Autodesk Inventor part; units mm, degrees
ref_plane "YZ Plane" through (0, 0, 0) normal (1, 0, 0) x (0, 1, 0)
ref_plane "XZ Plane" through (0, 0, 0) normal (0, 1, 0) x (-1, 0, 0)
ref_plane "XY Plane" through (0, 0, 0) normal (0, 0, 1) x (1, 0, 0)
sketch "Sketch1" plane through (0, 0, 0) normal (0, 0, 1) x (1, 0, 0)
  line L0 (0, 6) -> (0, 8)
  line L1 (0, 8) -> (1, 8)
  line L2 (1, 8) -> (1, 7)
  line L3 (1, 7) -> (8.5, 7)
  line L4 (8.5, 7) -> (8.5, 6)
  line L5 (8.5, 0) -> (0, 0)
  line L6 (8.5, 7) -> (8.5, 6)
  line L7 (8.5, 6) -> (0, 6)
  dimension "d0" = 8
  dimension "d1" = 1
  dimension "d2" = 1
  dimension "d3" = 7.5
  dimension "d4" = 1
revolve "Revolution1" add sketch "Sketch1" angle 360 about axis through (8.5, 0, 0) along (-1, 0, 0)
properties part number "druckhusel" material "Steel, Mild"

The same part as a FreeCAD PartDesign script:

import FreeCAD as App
import Part
import Sketcher

V = App.Vector


def add_polygon(sketch, points):
    """Adds a closed chain of lines whose ends are joined by coincident constraints."""
    first, n = sketch.GeometryCount, len(points)
    for a, b in zip(points, points[1:] + points[:1]):
        sketch.addGeometry(Part.LineSegment(App.Vector(*a, 0), App.Vector(*b, 0)), False)
    for i in range(n):
        sketch.addConstraint(Sketcher.Constraint("Coincident", first + i, 2, first + (i + 1) % n, 1))

doc = App.newDocument("Part")
body = doc.addObject("PartDesign::Body", "Body")

sketch1 = body.newObject("Sketcher::SketchObject", "Sketch")
sketch1.AttachmentSupport = (doc.getObject("XY_Plane"), [""])
sketch1.MapMode = "FlatFace"
add_polygon(sketch1, [(0, 8), (0, 6), (8.5, 6), (8.5, 7), (1, 7), (1, 8)])
sketch1.addConstraint(Sketcher.Constraint("Vertical", 0))
sketch1.addConstraint(Sketcher.Constraint("Horizontal", 1))
sketch1.addConstraint(Sketcher.Constraint("Vertical", 2))
sketch1.addConstraint(Sketcher.Constraint("Horizontal", 3))
sketch1.addConstraint(Sketcher.Constraint("Vertical", 4))
sketch1.addConstraint(Sketcher.Constraint("Horizontal", 5))
sketch1.addConstraint(Sketcher.Constraint("PointOnObject", 0, 2, -2))
sketch1.addConstraint(Sketcher.Constraint("Equal", 5, 2))
sketch1.addConstraint(Sketcher.Constraint("Equal", 2, 4))
sketch1.addConstraint(Sketcher.Constraint("DistanceX", 5, 2, 5, 1, 1.0))
sketch1.addConstraint(Sketcher.Constraint("DistanceX", 3, 2, 3, 1, 7.5))
sketch1.addConstraint(Sketcher.Constraint("DistanceY", -1, 1, 4, 2, 8.0))
revolution = body.newObject("PartDesign::Revolution", "Revolution")
revolution.Profile = sketch1
revolution.ReferenceAxis = (sketch1, ["H_Axis"])
revolution.Angle = 360

doc.recompute()
